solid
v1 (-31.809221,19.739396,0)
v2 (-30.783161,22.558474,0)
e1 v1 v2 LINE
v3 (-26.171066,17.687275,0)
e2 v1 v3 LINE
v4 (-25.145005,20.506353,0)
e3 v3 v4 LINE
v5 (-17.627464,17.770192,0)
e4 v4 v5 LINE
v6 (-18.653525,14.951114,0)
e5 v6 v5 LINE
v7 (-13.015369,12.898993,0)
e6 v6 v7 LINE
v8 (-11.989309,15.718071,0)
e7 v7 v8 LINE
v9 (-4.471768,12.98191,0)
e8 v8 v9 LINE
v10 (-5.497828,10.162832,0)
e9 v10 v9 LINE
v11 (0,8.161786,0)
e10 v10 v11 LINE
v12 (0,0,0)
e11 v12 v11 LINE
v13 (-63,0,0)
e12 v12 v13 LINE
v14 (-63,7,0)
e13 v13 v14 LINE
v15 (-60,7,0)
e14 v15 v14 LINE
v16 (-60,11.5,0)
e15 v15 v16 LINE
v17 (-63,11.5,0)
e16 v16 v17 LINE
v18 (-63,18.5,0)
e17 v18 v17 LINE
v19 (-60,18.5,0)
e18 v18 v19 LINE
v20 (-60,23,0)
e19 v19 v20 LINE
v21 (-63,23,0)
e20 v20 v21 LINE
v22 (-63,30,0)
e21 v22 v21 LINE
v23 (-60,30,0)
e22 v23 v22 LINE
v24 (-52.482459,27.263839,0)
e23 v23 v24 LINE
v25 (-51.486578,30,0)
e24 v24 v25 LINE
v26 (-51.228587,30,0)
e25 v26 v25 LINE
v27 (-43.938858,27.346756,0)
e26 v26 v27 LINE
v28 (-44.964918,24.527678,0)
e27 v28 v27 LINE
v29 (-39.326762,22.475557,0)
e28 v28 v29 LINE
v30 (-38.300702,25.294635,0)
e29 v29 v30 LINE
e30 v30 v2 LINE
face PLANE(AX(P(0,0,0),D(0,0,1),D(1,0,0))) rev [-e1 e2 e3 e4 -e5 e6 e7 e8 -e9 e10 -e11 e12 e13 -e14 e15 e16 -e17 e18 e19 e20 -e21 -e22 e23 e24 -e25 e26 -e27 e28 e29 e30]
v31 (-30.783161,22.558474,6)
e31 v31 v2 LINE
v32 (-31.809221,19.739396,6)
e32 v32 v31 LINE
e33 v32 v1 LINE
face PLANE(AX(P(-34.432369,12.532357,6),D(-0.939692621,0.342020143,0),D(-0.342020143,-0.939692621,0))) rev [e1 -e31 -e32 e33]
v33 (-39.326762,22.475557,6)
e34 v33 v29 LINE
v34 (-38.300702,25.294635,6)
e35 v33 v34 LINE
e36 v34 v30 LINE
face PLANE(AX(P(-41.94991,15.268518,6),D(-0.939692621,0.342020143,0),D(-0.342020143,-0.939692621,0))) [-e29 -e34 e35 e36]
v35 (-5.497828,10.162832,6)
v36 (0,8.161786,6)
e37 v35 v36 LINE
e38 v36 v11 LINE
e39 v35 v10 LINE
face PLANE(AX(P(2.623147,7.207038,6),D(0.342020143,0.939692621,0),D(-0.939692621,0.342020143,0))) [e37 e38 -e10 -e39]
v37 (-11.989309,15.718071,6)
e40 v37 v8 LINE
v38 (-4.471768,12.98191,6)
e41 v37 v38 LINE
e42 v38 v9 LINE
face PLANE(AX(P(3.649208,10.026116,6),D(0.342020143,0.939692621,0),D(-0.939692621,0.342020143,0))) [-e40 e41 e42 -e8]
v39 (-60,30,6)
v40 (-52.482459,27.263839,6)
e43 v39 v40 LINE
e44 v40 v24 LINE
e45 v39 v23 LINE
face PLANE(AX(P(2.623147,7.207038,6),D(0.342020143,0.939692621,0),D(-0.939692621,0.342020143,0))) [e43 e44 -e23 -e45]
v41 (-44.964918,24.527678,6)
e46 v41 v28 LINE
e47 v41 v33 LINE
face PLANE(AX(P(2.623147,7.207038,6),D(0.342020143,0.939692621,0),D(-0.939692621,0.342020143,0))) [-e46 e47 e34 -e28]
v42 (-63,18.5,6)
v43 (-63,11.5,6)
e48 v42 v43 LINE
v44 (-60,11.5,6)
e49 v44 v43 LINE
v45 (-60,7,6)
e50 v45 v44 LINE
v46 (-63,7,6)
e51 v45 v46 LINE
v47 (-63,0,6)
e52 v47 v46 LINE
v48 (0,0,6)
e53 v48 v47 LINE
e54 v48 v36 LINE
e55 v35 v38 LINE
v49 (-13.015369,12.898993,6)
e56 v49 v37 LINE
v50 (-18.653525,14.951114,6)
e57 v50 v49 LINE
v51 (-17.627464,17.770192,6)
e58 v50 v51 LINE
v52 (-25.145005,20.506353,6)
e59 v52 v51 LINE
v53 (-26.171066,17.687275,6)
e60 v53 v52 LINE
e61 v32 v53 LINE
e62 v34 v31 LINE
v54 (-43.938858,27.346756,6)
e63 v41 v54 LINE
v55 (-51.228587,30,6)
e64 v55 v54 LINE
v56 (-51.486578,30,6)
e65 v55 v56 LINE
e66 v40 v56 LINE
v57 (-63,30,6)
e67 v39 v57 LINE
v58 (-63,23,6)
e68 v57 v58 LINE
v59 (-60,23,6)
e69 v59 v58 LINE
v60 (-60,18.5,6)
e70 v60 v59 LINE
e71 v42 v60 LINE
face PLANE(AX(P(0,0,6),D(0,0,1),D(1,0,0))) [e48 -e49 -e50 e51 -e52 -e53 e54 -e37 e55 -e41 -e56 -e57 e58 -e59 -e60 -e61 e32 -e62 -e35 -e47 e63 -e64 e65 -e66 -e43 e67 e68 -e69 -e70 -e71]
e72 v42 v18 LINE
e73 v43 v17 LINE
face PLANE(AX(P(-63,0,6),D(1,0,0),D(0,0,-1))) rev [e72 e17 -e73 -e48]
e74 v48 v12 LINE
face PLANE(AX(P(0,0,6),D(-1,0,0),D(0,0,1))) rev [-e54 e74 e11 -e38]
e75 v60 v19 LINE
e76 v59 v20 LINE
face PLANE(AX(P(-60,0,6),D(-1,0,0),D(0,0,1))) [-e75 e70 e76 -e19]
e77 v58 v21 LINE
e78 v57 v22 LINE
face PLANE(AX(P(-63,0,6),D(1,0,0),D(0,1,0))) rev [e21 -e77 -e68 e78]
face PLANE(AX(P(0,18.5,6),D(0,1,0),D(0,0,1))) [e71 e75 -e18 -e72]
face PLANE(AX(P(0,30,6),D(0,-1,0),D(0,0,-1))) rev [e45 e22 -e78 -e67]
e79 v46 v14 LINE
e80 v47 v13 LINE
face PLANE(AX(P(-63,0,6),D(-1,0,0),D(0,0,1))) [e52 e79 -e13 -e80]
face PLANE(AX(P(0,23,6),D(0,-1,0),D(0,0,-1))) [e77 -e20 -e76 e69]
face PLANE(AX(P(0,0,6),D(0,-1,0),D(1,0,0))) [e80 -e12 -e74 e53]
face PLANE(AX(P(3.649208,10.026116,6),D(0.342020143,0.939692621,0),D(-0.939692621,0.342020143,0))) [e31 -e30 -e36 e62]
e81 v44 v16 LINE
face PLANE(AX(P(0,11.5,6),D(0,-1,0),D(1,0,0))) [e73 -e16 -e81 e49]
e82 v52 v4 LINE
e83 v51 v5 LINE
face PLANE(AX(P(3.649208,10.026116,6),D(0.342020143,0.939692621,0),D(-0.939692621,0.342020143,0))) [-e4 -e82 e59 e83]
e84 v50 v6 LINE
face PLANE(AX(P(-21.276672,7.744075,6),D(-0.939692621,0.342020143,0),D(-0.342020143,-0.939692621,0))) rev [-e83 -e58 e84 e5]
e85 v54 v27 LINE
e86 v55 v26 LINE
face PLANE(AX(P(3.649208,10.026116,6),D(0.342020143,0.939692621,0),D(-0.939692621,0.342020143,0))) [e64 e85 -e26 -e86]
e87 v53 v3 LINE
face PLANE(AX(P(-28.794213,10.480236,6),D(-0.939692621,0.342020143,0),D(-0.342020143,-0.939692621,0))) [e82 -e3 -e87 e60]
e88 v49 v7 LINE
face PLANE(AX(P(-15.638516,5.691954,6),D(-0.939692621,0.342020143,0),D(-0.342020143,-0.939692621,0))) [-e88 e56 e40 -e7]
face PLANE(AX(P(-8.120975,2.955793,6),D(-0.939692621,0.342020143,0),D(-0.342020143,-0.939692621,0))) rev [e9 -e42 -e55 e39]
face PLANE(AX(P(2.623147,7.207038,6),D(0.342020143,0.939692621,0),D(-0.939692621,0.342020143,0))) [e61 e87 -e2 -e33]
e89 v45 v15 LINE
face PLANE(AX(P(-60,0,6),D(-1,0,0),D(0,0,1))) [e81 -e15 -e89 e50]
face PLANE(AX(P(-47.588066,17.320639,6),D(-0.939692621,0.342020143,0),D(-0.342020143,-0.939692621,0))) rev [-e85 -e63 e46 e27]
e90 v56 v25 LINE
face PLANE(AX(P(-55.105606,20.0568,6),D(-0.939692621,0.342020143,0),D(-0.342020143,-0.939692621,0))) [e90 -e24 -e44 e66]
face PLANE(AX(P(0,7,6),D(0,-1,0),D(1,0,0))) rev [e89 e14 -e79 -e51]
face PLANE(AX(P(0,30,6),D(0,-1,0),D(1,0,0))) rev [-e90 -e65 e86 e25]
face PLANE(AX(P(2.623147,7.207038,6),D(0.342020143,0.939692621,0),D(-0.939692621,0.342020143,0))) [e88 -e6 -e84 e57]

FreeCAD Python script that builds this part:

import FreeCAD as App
import Part
import Sketcher

V = App.Vector
Q = App.Units.Quantity


def add_polygon(sketch, points):
    """Adds a closed chain of lines whose ends are joined by coincident constraints."""
    first, n = sketch.GeometryCount, len(points)
    for a, b in zip(points, points[1:] + points[:1]):
        sketch.addGeometry(Part.LineSegment(App.Vector(*a, 0), App.Vector(*b, 0)), False)
    for i in range(n):
        sketch.addConstraint(Sketcher.Constraint("Coincident", first + i, 2, first + (i + 1) % n, 1))

doc = App.newDocument("Part")
body = doc.addObject("PartDesign::Body", "Body")

sketch1 = body.newObject("Sketcher::SketchObject", "Sketch")
sketch1.AttachmentSupport = (doc.getObject("XY_Plane"), [""])
sketch1.MapMode = "FlatFace"
add_polygon(sketch1, [(-63, 30), (-63, 23), (-60, 23), (-60, 18.5), (-63, 18.5), (-63, 11.5), (-60, 11.5), (-60, 7), (-63, 7), (-63, 0), (0, 0), (0, 8.16), (-5.5, 10.16), (-4.47, 12.98), (-11.99, 15.72), (-13.02, 12.9), (-18.65, 14.95), (-17.63, 17.77), (-25.15, 20.51), (-26.17, 17.69), (-31.81, 19.74), (-30.78, 22.56), (-38.3, 25.29), (-39.33, 22.48), (-44.96, 24.53), (-43.94, 27.35), (-51.23, 30), (-51.49, 30), (-52.48, 27.26), (-60, 30)])
sketch1.addConstraint([
    Sketcher.Constraint("Vertical", 0),
    Sketcher.Constraint("Horizontal", 1),
    Sketcher.Constraint("Vertical", 2),
    Sketcher.Constraint("Horizontal", 3),
    Sketcher.Constraint("Vertical", 4),
    Sketcher.Constraint("Horizontal", 5),
    Sketcher.Constraint("Vertical", 6),
    Sketcher.Constraint("Horizontal", 7),
    Sketcher.Constraint("Vertical", 8),
    Sketcher.Constraint("Horizontal", 9),
    Sketcher.Constraint("Vertical", 10),
    Sketcher.Constraint("Horizontal", 26),
    Sketcher.Constraint("Horizontal", 29),
    Sketcher.Constraint("Coincident", 9, 2, -1, 1),
    Sketcher.Constraint("Perpendicular", 11, 12),
    Sketcher.Constraint("Perpendicular", 12, 13),
    Sketcher.Constraint("Perpendicular", 13, 14),
    Sketcher.Constraint("Perpendicular", 14, 15),
    Sketcher.Constraint("Perpendicular", 15, 16),
    Sketcher.Constraint("Perpendicular", 16, 17),
    Sketcher.Constraint("Perpendicular", 17, 18),
    Sketcher.Constraint("Perpendicular", 18, 19),
    Sketcher.Constraint("Perpendicular", 19, 20),
    Sketcher.Constraint("Perpendicular", 20, 21),
    Sketcher.Constraint("Perpendicular", 21, 22),
    Sketcher.Constraint("Perpendicular", 22, 23),
    Sketcher.Constraint("Perpendicular", 23, 24),
    Sketcher.Constraint("Perpendicular", 24, 25),
    Sketcher.Constraint("Perpendicular", 25, 27),
    Sketcher.Constraint("Perpendicular", 27, 28),
    Sketcher.Constraint("Horizontal", 26, 2, 28, 2),
    Sketcher.Constraint("Vertical", 0, 2, 3, 2),
    Sketcher.Constraint("Vertical", 2, 2, 5, 2),
    Sketcher.Constraint("Vertical", 4, 2, 7, 2),
    Sketcher.Constraint("Vertical", 6, 2, 28, 2),
    Sketcher.Constraint("Equal", 0, 4),
    Sketcher.Constraint("Equal", 2, 6),
    Sketcher.Constraint("Equal", 4, 8),
    Sketcher.Constraint("Equal", 12, 14),
    Sketcher.Constraint("Equal", 14, 16),
    Sketcher.Constraint("Equal", 13, 17),
    Sketcher.Constraint("Equal", 16, 18),
    Sketcher.Constraint("Equal", 15, 19),
    Sketcher.Constraint("Equal", 18, 20),
    Sketcher.Constraint("Equal", 17, 21),
    Sketcher.Constraint("Equal", 20, 22),
    Sketcher.Constraint("Equal", 19, 23),
    Sketcher.Constraint("Equal", 22, 24),
    Sketcher.Constraint("Equal", 21, 28),
    Sketcher.Constraint("DistanceX", 1, 1, 1, 2, Q("3 mm")),
    Sketcher.Constraint("DistanceX", 9, 1, 9, 2, Q("63 mm")),
    Sketcher.Constraint("DistanceY", 0, 2, 0, 1, Q("7 mm")),
    Sketcher.Constraint("Angle", 11, Q("160 deg")),
    Sketcher.Constraint("Distance", 12, Q("3 mm")),
    Sketcher.Constraint("Distance", 13, Q("8 mm")),
    Sketcher.Constraint("Distance", 15, Q("6 mm")),
    Sketcher.Constraint("DistanceY", 2, 2, 2, 1, Q("4.5 mm")),
    Sketcher.Constraint("DistanceX", 26, 2, 26, 1, Q("0.257991 mm")),
    Sketcher.Constraint("DistanceX", 21, 2, -1, 1, Q("38.300702 mm")),
])
pad1 = body.newObject("PartDesign::Pad", "Pad")
pad1.Profile = sketch1
pad1.Length = 6

doc.recompute()
